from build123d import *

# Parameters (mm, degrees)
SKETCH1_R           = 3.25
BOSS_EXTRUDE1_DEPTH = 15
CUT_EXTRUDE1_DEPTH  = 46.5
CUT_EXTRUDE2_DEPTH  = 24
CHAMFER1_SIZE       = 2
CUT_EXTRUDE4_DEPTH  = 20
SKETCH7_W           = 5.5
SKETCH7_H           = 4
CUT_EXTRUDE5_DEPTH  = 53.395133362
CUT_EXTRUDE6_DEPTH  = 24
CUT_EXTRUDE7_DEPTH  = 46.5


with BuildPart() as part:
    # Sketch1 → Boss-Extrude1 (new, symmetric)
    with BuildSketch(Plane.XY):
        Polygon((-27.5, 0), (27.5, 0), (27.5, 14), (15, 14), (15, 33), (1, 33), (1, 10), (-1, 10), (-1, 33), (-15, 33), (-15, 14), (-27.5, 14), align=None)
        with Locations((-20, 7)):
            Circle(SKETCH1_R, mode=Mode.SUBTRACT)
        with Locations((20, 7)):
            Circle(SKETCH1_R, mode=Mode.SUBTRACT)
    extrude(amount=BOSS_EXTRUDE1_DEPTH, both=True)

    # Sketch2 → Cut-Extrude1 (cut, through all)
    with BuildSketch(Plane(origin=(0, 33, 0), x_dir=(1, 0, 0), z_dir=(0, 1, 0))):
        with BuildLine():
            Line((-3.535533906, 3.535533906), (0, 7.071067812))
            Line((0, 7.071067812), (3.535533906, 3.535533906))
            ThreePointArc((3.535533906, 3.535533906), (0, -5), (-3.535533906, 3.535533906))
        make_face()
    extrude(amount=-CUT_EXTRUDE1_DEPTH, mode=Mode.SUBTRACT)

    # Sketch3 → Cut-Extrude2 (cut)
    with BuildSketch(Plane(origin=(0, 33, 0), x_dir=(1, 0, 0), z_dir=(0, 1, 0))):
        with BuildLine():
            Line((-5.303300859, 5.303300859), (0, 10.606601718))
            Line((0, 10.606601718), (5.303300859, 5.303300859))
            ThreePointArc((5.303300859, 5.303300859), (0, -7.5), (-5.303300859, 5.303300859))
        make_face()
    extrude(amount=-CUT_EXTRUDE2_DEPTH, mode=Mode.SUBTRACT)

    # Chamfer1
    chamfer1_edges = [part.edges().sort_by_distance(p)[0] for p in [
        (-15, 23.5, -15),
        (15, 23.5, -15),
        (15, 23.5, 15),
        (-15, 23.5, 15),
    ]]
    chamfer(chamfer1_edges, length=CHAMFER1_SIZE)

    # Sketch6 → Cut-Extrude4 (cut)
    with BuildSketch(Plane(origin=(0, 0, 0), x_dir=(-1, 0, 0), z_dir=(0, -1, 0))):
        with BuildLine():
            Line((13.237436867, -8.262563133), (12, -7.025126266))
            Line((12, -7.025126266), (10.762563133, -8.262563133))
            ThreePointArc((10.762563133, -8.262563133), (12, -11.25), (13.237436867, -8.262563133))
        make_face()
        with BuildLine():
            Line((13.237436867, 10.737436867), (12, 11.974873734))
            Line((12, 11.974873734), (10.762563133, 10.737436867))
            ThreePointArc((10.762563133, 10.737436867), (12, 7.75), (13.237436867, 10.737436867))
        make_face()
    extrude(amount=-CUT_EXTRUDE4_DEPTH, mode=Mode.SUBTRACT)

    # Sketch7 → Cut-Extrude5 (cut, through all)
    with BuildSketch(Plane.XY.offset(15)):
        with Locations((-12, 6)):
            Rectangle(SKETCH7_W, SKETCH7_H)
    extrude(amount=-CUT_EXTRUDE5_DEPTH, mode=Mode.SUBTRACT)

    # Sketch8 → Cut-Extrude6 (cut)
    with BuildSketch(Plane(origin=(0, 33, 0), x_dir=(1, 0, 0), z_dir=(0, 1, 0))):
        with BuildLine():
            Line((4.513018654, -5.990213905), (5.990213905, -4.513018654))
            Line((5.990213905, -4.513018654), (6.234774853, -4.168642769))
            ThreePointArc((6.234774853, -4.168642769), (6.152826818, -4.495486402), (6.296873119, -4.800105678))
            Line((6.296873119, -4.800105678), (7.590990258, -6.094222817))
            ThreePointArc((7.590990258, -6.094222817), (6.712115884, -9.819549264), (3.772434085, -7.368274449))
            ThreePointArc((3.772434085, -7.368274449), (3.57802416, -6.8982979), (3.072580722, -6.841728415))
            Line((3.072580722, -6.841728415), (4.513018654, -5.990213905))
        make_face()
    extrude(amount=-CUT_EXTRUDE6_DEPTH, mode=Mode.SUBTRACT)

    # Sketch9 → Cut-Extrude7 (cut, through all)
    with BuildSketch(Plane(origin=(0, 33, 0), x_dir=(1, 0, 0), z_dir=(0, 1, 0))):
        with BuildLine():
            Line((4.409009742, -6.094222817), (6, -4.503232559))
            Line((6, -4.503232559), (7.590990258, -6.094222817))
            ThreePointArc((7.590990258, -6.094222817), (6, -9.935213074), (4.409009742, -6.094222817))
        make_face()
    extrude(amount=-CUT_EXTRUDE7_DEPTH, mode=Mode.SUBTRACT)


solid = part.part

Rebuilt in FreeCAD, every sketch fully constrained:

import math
import FreeCAD as App
import Part
import Sketcher
Q = App.Units.Quantity


def edges_at(feature, points):
    """Names of the edges that pass closest to the given points."""
    edges = feature.Shape.Edges
    near = lambda p: min(range(len(edges)), key=lambda i: edges[i].distToShape(Part.Vertex(*p))[0])
    return sorted({f"Edge{near(p) + 1}" for p in points})

doc = App.newDocument("Part")
params = doc.addObject("Spreadsheet::Sheet", "Params")
for row, (alias, value) in enumerate([
    ("sketch1_diameter", "6.5 mm"),
    ("sketch1_width", "55 mm"),
    ("sketch1_width2", "14 mm"),
    ("sketch1_width3", "2 mm"),
    ("sketch1_height", "19 mm"),
    ("pad1_length", "30 mm"),
    ("sketch2_radius", "5 mm"),
    ("sketch3_radius", "7.5 mm"),
    ("pocket2_length", "24 mm"),
    ("chamfer_size", "2 mm"),
    ("sketch4_radius", "1.75 mm"),
    ("pocket3_length", "20 mm"),
    ("sketch5_height", "4 mm"),
    ("sketch5_width", "5.5 mm"),
    ("sketch6_radius", "0.5 mm"),
    ("sketch6_radius2", "2.25 mm"),
    ("pocket5_length", "24 mm"),
    ("sketch7_radius", "2.25 mm"),
], start=1):
    params.set(f"A{row}", alias)
    params.set(f"B{row}", "=" + value)
    params.setAlias(f"B{row}", alias)

body = doc.addObject("PartDesign::Body", "Body")

# Sketch on XY plane
sketch1 = body.newObject("Sketcher::SketchObject", "Sketch")
sketch1.AttachmentSupport = (doc.getObject("XY_Plane"), [""])
sketch1.MapMode = "FlatFace"
sketch1.addGeometry(Part.LineSegment(App.Vector(-27.5, 0, 0), App.Vector(27.5, 0, 0)), False)
sketch1.addGeometry(Part.LineSegment(App.Vector(27.5, 0, 0), App.Vector(27.5, 14, 0)), False)
sketch1.addGeometry(Part.LineSegment(App.Vector(27.5, 14, 0), App.Vector(15, 14, 0)), False)
sketch1.addGeometry(Part.LineSegment(App.Vector(15, 14, 0), App.Vector(15, 33, 0)), False)
sketch1.addGeometry(Part.LineSegment(App.Vector(15, 33, 0), App.Vector(1, 33, 0)), False)
sketch1.addGeometry(Part.LineSegment(App.Vector(1, 33, 0), App.Vector(1, 10, 0)), False)
sketch1.addGeometry(Part.LineSegment(App.Vector(1, 10, 0), App.Vector(-1, 10, 0)), False)
sketch1.addGeometry(Part.LineSegment(App.Vector(-1, 10, 0), App.Vector(-1, 33, 0)), False)
sketch1.addGeometry(Part.LineSegment(App.Vector(-1, 33, 0), App.Vector(-15, 33, 0)), False)
sketch1.addGeometry(Part.LineSegment(App.Vector(-15, 33, 0), App.Vector(-15, 14, 0)), False)
sketch1.addGeometry(Part.LineSegment(App.Vector(-15, 14, 0), App.Vector(-27.5, 14, 0)), False)
sketch1.addGeometry(Part.LineSegment(App.Vector(-27.5, 14, 0), App.Vector(-27.5, 0, 0)), False)
sketch1.addGeometry(Part.Circle(App.Vector(-20, 7, 0), App.Vector(0, 0, 1), 3.25), False)
sketch1.addGeometry(Part.Circle(App.Vector(20, 7, 0), App.Vector(0, 0, 1), 3.25), False)
sketch1.addConstraint(Sketcher.Constraint("Coincident", 0, 2, 1, 1))
sketch1.addConstraint(Sketcher.Constraint("Coincident", 1, 2, 2, 1))
sketch1.addConstraint(Sketcher.Constraint("Coincident", 2, 2, 3, 1))
sketch1.addConstraint(Sketcher.Constraint("Coincident", 3, 2, 4, 1))
sketch1.addConstraint(Sketcher.Constraint("Coincident", 4, 2, 5, 1))
sketch1.addConstraint(Sketcher.Constraint("Coincident", 5, 2, 6, 1))
sketch1.addConstraint(Sketcher.Constraint("Coincident", 6, 2, 7, 1))
sketch1.addConstraint(Sketcher.Constraint("Coincident", 7, 2, 8, 1))
sketch1.addConstraint(Sketcher.Constraint("Coincident", 8, 2, 9, 1))
sketch1.addConstraint(Sketcher.Constraint("Coincident", 9, 2, 10, 1))
sketch1.addConstraint(Sketcher.Constraint("Coincident", 10, 2, 11, 1))
sketch1.addConstraint(Sketcher.Constraint("Coincident", 11, 2, 0, 1))
sketch1.addConstraint(Sketcher.Constraint("Horizontal", 0))
sketch1.addConstraint(Sketcher.Constraint("Vertical", 1))
sketch1.addConstraint(Sketcher.Constraint("Horizontal", 2))
sketch1.addConstraint(Sketcher.Constraint("Vertical", 3))
sketch1.addConstraint(Sketcher.Constraint("Horizontal", 4))
sketch1.addConstraint(Sketcher.Constraint("Vertical", 5))
sketch1.addConstraint(Sketcher.Constraint("Horizontal", 6))
sketch1.addConstraint(Sketcher.Constraint("Vertical", 7))
sketch1.addConstraint(Sketcher.Constraint("Horizontal", 8))
sketch1.addConstraint(Sketcher.Constraint("Vertical", 9))
sketch1.addConstraint(Sketcher.Constraint("Horizontal", 10))
sketch1.addConstraint(Sketcher.Constraint("Vertical", 11))
sketch1.addConstraint(Sketcher.Constraint("Equal", 12, 13))
sketch1.addConstraint(Sketcher.Constraint("Symmetric", 0, 2, 11, 2, -1, 1))
sketch1.addConstraint(Sketcher.Constraint("Symmetric", 12, 3, 13, 3, -2))
sketch1.addConstraint(Sketcher.Constraint("Symmetric", 4, 2, 7, 2, -2))
sketch1.addConstraint(Sketcher.Constraint("Symmetric", 2, 2, 9, 2, -2))
sketch1.addConstraint(Sketcher.Constraint("Equal", 8, 1))
sketch1.addConstraint(Sketcher.Constraint("Diameter", 12, Q("6.5 mm")))
sketch1.addConstraint(Sketcher.Constraint("DistanceX", 0, 1, 0, 2, Q("55 mm")))
sketch1.addConstraint(Sketcher.Constraint("DistanceX", 4, 2, 4, 1, Q("14 mm")))
sketch1.addConstraint(Sketcher.Constraint("DistanceX", 6, 2, 6, 1, Q("2 mm")))
sketch1.addConstraint(Sketcher.Constraint("DistanceY", 3, 1, 3, 2, Q("19 mm")))
sketch1.addConstraint(Sketcher.Constraint("DistanceY", 5, 2, 5, 1, Q("23 mm")))
sketch1.addConstraint(Sketcher.Constraint("DistanceX", 12, 3, -1, 1, Q("20 mm")))
sketch1.addConstraint(Sketcher.Constraint("DistanceY", -1, 1, 12, 3, Q("7 mm")))
sketch1.setExpression("Constraints[30]", "Params.sketch1_diameter")
sketch1.setExpression("Constraints[31]", "Params.sketch1_width")
sketch1.setExpression("Constraints[32]", "Params.sketch1_width2")
sketch1.setExpression("Constraints[33]", "Params.sketch1_width3")
sketch1.setExpression("Constraints[34]", "Params.sketch1_height")
pad1 = body.newObject("PartDesign::Pad", "Pad")
pad1.Profile = sketch1
pad1.setExpression("Length", "Params.pad1_length")
pad1.Midplane = True

# Sketch on XZ plane
sketch2 = body.newObject("Sketcher::SketchObject", "Sketch001")
sketch2.AttachmentSupport = (doc.getObject("XZ_Plane"), [""])
sketch2.MapMode = "FlatFace"
sketch2.AttachmentOffset = App.Placement(App.Vector(0, 0, -33), App.Rotation())
sketch2.addGeometry(Part.LineSegment(App.Vector(0, -7.071068, 0), App.Vector(-3.535534, -3.535534, 0)), False)
sketch2.addGeometry(Part.ArcOfCircle(Part.Circle(App.Vector(0, 0, 0), App.Vector(0, 0, 1), 5), math.radians(-45), math.radians(225)), False)
sketch2.addGeometry(Part.LineSegment(App.Vector(3.535534, -3.535534, 0), App.Vector(0, -7.071068, 0)), False)
sketch2.addConstraint(Sketcher.Constraint("Tangent", 0, 2, 1, 2))
sketch2.addConstraint(Sketcher.Constraint("Tangent", 1, 1, 2, 1))
sketch2.addConstraint(Sketcher.Constraint("Coincident", 2, 2, 0, 1))
sketch2.addConstraint(Sketcher.Constraint("Coincident", 1, 3, -1, 1))
sketch2.addConstraint(Sketcher.Constraint("PointOnObject", 2, 2, -2))
sketch2.addConstraint(Sketcher.Constraint("Perpendicular", 0, 2))
sketch2.addConstraint(Sketcher.Constraint("Radius", 1, Q("5 mm")))
sketch2.setExpression("Constraints[6]", "Params.sketch2_radius")
pocket1 = body.newObject("PartDesign::Pocket", "Pocket")
pocket1.Profile = sketch2
pocket1.Type = "ThroughAll"
pocket1.Reversed = True

# Sketch on XZ plane
sketch3 = body.newObject("Sketcher::SketchObject", "Sketch002")
sketch3.AttachmentSupport = (doc.getObject("XZ_Plane"), [""])
sketch3.MapMode = "FlatFace"
sketch3.AttachmentOffset = App.Placement(App.Vector(0, 0, -33), App.Rotation())
sketch3.addGeometry(Part.LineSegment(App.Vector(0, -10.606602, 0), App.Vector(-5.303301, -5.303301, 0)), False)
sketch3.addGeometry(Part.ArcOfCircle(Part.Circle(App.Vector(0, 0, 0), App.Vector(0, 0, 1), 7.5), math.radians(-45), math.radians(225)), False)
sketch3.addGeometry(Part.LineSegment(App.Vector(5.303301, -5.303301, 0), App.Vector(0, -10.606602, 0)), False)
sketch3.addConstraint(Sketcher.Constraint("Tangent", 0, 2, 1, 2))
sketch3.addConstraint(Sketcher.Constraint("Tangent", 1, 1, 2, 1))
sketch3.addConstraint(Sketcher.Constraint("Coincident", 2, 2, 0, 1))
sketch3.addConstraint(Sketcher.Constraint("Coincident", 1, 3, -1, 1))
sketch3.addConstraint(Sketcher.Constraint("PointOnObject", 2, 2, -2))
sketch3.addConstraint(Sketcher.Constraint("Perpendicular", 0, 2))
sketch3.addConstraint(Sketcher.Constraint("Radius", 1, Q("7.5 mm")))
sketch3.setExpression("Constraints[6]", "Params.sketch3_radius")
pocket2 = body.newObject("PartDesign::Pocket", "Pocket001")
pocket2.Profile = sketch3
pocket2.setExpression("Length", "Params.pocket2_length")
pocket2.Reversed = True
doc.recompute()

chamfer = body.newObject("PartDesign::Chamfer", "Chamfer")
chamfer.Base = (pocket2, edges_at(pocket2, [
    (-15, 23.5, -15),
    (15, 23.5, -15),
    (15, 23.5, 15),
    (-15, 23.5, 15),
]))
chamfer.setExpression("Size", "Params.chamfer_size")

# Sketch on XZ plane
sketch4 = body.newObject("Sketcher::SketchObject", "Sketch003")
sketch4.AttachmentSupport = (doc.getObject("XZ_Plane"), [""])
sketch4.MapMode = "FlatFace"
sketch4.addGeometry(Part.LineSegment(App.Vector(-13.237437, 8.262563, 0), App.Vector(-12, 7.025126, 0)), False)
sketch4.addGeometry(Part.LineSegment(App.Vector(-12, 7.025126, 0), App.Vector(-10.762563, 8.262563, 0)), False)
sketch4.addGeometry(Part.ArcOfCircle(Part.Circle(App.Vector(-12, 9.5, 0), App.Vector(0, 0, 1), 1.75), math.radians(-45), math.radians(225)), False)
sketch4.addGeometry(Part.LineSegment(App.Vector(-13.237437, -10.737437, 0), App.Vector(-12, -11.974874, 0)), False)
sketch4.addGeometry(Part.LineSegment(App.Vector(-12, -11.974874, 0), App.Vector(-10.762563, -10.737437, 0)), False)
sketch4.addGeometry(Part.ArcOfCircle(Part.Circle(App.Vector(-12, -9.5, 0), App.Vector(0, 0, 1), 1.75), math.radians(-45), math.radians(225)), False)
sketch4.addConstraint(Sketcher.Constraint("Coincident", 0, 2, 1, 1))
sketch4.addConstraint(Sketcher.Constraint("Tangent", 1, 2, 2, 1))
sketch4.addConstraint(Sketcher.Constraint("Tangent", 2, 2, 0, 1))
sketch4.addConstraint(Sketcher.Constraint("Coincident", 3, 2, 4, 1))
sketch4.addConstraint(Sketcher.Constraint("Tangent", 4, 2, 5, 1))
sketch4.addConstraint(Sketcher.Constraint("Tangent", 5, 2, 3, 1))
sketch4.addConstraint(Sketcher.Constraint("Equal", 2, 5))
sketch4.addConstraint(Sketcher.Constraint("Symmetric", 2, 3, 5, 3, -1))
sketch4.addConstraint(Sketcher.Constraint("Perpendicular", 0, 1))
sketch4.addConstraint(Sketcher.Constraint("Perpendicular", 1, 3))
sketch4.addConstraint(Sketcher.Constraint("Perpendicular", 3, 4))
sketch4.addConstraint(Sketcher.Constraint("Horizontal", 1, 2, 2, 2))
sketch4.addConstraint(Sketcher.Constraint("Radius", 2, Q("1.75 mm")))
sketch4.addConstraint(Sketcher.Constraint("DistanceX", 2, 3, -1, 1, Q("12 mm")))
sketch4.addConstraint(Sketcher.Constraint("DistanceY", 5, 3, 2, 3, Q("19 mm")))
sketch4.setExpression("Constraints[12]", "Params.sketch4_radius")
pocket3 = body.newObject("PartDesign::Pocket", "Pocket002")
pocket3.Profile = sketch4
pocket3.setExpression("Length", "Params.pocket3_length")

# Sketch on XY plane
sketch5 = body.newObject("Sketcher::SketchObject", "Sketch004")
sketch5.AttachmentSupport = (doc.getObject("XY_Plane"), [""])
sketch5.MapMode = "FlatFace"
sketch5.AttachmentOffset = App.Placement(App.Vector(0, 0, 15), App.Rotation())
sketch5.addGeometry(Part.LineSegment(App.Vector(-14.75, 8, 0), App.Vector(-14.75, 4, 0)), False)
sketch5.addGeometry(Part.LineSegment(App.Vector(-14.75, 4, 0), App.Vector(-9.25, 4, 0)), False)
sketch5.addGeometry(Part.LineSegment(App.Vector(-9.25, 4, 0), App.Vector(-9.25, 8, 0)), False)
sketch5.addGeometry(Part.LineSegment(App.Vector(-9.25, 8, 0), App.Vector(-14.75, 8, 0)), False)
sketch5.addConstraint(Sketcher.Constraint("Coincident", 0, 2, 1, 1))
sketch5.addConstraint(Sketcher.Constraint("Coincident", 1, 2, 2, 1))
sketch5.addConstraint(Sketcher.Constraint("Coincident", 2, 2, 3, 1))
sketch5.addConstraint(Sketcher.Constraint("Coincident", 3, 2, 0, 1))
sketch5.addConstraint(Sketcher.Constraint("Vertical", 0))
sketch5.addConstraint(Sketcher.Constraint("Horizontal", 1))
sketch5.addConstraint(Sketcher.Constraint("Vertical", 2))
sketch5.addConstraint(Sketcher.Constraint("Horizontal", 3))
sketch5.addConstraint(Sketcher.Constraint("DistanceY", 0, 2, 0, 1, Q("4 mm")))
sketch5.addConstraint(Sketcher.Constraint("DistanceX", 1, 1, 1, 2, Q("5.5 mm")))
sketch5.addConstraint(Sketcher.Constraint("DistanceY", -1, 1, 0, 2, Q("4 mm")))
sketch5.addConstraint(Sketcher.Constraint("DistanceX", 0, 2, -1, 1, Q("14.75 mm")))
sketch5.setExpression("Constraints[8]", "Params.sketch5_height")
sketch5.setExpression("Constraints[9]", "Params.sketch5_width")
pocket4 = body.newObject("PartDesign::Pocket", "Pocket003")
pocket4.Profile = sketch5
pocket4.Type = "ThroughAll"

# Sketch on XZ plane
sketch6 = body.newObject("Sketcher::SketchObject", "Sketch005")
sketch6.AttachmentSupport = (doc.getObject("XZ_Plane"), [""])
sketch6.MapMode = "FlatFace"
sketch6.AttachmentOffset = App.Placement(App.Vector(0, 0, -33), App.Rotation())
sketch6.addGeometry(Part.LineSegment(App.Vector(5.990214, 4.513019, 0), App.Vector(4.513019, 5.990214, 0)), False)
sketch6.addGeometry(Part.LineSegment(App.Vector(4.513019, 5.990214, 0), App.Vector(3.072581, 6.841728, 0)), False)
sketch6.addGeometry(Part.ArcOfCircle(Part.Circle(App.Vector(3.277419, 7.297844, 0), App.Vector(0, 0, 1), 0.5), math.radians(-114.184573), math.radians(8.097707)), False)
sketch6.addGeometry(Part.ArcOfCircle(Part.Circle(App.Vector(6, 7.685213, 0), App.Vector(0, 0, 1), 2.25), math.radians(-45), math.radians(188.097707)), False)
sketch6.addGeometry(Part.LineSegment(App.Vector(7.59099, 6.094223, 0), App.Vector(6.296873, 4.800106, 0)), False)
sketch6.addGeometry(Part.ArcOfCircle(Part.Circle(App.Vector(6.650427, 4.446552, 0), App.Vector(0, 0, 1), 0.5), math.radians(135), math.radians(213.767147)), False)
sketch6.addGeometry(Part.LineSegment(App.Vector(6.234775, 4.168643, 0), App.Vector(5.990214, 4.513019, 0)), False)
sketch6.addConstraint(Sketcher.Constraint("Coincident", 0, 2, 1, 1))
sketch6.addConstraint(Sketcher.Constraint("Coincident", 1, 2, 2, 1))
sketch6.addConstraint(Sketcher.Constraint("Tangent", 2, 2, 3, 2))
sketch6.addConstraint(Sketcher.Constraint("Tangent", 3, 1, 4, 1))
sketch6.addConstraint(Sketcher.Constraint("Tangent", 4, 2, 5, 1))
sketch6.addConstraint(Sketcher.Constraint("Coincident", 5, 2, 6, 1))
sketch6.addConstraint(Sketcher.Constraint("Coincident", 6, 2, 0, 1))
sketch6.addConstraint(Sketcher.Constraint("Equal", 2, 5))
sketch6.addConstraint(Sketcher.Constraint("Perpendicular", 0, 4))
sketch6.addConstraint(Sketcher.Constraint("Radius", 2, Q("0.5 mm")))
sketch6.addConstraint(Sketcher.Constraint("Angle", 0, Q("135 deg")))
sketch6.addConstraint(Sketcher.Constraint("Radius", 3, Q("2.25 mm")))
sketch6.addConstraint(Sketcher.Constraint("DistanceX", -1, 1, 3, 3, Q("6 mm")))
sketch6.addConstraint(Sketcher.Constraint("DistanceY", 0, 2, 3, 3, Q("1.694999 mm")))
sketch6.addConstraint(Sketcher.Constraint("Distance", 1, Q("1.673302 mm")))
sketch6.addConstraint(Sketcher.Constraint("DistanceX", 2, 3, 0, 2, Q("1.235599 mm")))
sketch6.addConstraint(Sketcher.Constraint("DistanceX", 5, 2, 4, 2, Q("0.062098 mm")))
sketch6.addConstraint(Sketcher.Constraint("Distance", 0, Q("2.08907 mm")))
sketch6.addConstraint(Sketcher.Constraint("Distance", 4, Q("1.830158 mm")))
sketch6.addConstraint(Sketcher.Constraint("Distance", 6, Q("0.42238 mm")))
sketch6.addConstraint(Sketcher.Constraint("DistanceY", -1, 1, 1, 2, Q("6.841728 mm")))
sketch6.setExpression("Constraints[9]", "Params.sketch6_radius")
sketch6.setExpression("Constraints[11]", "Params.sketch6_radius2")
pocket5 = body.newObject("PartDesign::Pocket", "Pocket004")
pocket5.Profile = sketch6
pocket5.setExpression("Length", "Params.pocket5_length")
pocket5.Reversed = True

# Sketch on XZ plane
sketch7 = body.newObject("Sketcher::SketchObject", "Sketch006")
sketch7.AttachmentSupport = (doc.getObject("XZ_Plane"), [""])
sketch7.MapMode = "FlatFace"
sketch7.AttachmentOffset = App.Placement(App.Vector(0, 0, -33), App.Rotation())
sketch7.addGeometry(Part.LineSegment(App.Vector(6, 4.503233, 0), App.Vector(4.40901, 6.094223, 0)), False)
sketch7.addGeometry(Part.ArcOfCircle(Part.Circle(App.Vector(6, 7.685213, 0), App.Vector(0, 0, 1), 2.25), math.radians(-45), math.radians(225)), False)
sketch7.addGeometry(Part.LineSegment(App.Vector(7.59099, 6.094223, 0), App.Vector(6, 4.503233, 0)), False)
sketch7.addConstraint(Sketcher.Constraint("Tangent", 0, 2, 1, 2))
sketch7.addConstraint(Sketcher.Constraint("Tangent", 1, 1, 2, 1))
sketch7.addConstraint(Sketcher.Constraint("Coincident", 2, 2, 0, 1))
sketch7.addConstraint(Sketcher.Constraint("Perpendicular", 0, 2))
sketch7.addConstraint(Sketcher.Constraint("Horizontal", 0, 2, 1, 1))
sketch7.addConstraint(Sketcher.Constraint("Radius", 1, Q("2.25 mm")))
sketch7.addConstraint(Sketcher.Constraint("DistanceX", -1, 1, 1, 3, Q("6 mm")))
sketch7.addConstraint(Sketcher.Constraint("DistanceY", -1, 1, 1, 3, Q("7.685213 mm")))
sketch7.setExpression("Constraints[5]", "Params.sketch7_radius")
pocket6 = body.newObject("PartDesign::Pocket", "Pocket005")
pocket6.Profile = sketch7
pocket6.Type = "ThroughAll"
pocket6.Reversed = True

doc.recompute()
